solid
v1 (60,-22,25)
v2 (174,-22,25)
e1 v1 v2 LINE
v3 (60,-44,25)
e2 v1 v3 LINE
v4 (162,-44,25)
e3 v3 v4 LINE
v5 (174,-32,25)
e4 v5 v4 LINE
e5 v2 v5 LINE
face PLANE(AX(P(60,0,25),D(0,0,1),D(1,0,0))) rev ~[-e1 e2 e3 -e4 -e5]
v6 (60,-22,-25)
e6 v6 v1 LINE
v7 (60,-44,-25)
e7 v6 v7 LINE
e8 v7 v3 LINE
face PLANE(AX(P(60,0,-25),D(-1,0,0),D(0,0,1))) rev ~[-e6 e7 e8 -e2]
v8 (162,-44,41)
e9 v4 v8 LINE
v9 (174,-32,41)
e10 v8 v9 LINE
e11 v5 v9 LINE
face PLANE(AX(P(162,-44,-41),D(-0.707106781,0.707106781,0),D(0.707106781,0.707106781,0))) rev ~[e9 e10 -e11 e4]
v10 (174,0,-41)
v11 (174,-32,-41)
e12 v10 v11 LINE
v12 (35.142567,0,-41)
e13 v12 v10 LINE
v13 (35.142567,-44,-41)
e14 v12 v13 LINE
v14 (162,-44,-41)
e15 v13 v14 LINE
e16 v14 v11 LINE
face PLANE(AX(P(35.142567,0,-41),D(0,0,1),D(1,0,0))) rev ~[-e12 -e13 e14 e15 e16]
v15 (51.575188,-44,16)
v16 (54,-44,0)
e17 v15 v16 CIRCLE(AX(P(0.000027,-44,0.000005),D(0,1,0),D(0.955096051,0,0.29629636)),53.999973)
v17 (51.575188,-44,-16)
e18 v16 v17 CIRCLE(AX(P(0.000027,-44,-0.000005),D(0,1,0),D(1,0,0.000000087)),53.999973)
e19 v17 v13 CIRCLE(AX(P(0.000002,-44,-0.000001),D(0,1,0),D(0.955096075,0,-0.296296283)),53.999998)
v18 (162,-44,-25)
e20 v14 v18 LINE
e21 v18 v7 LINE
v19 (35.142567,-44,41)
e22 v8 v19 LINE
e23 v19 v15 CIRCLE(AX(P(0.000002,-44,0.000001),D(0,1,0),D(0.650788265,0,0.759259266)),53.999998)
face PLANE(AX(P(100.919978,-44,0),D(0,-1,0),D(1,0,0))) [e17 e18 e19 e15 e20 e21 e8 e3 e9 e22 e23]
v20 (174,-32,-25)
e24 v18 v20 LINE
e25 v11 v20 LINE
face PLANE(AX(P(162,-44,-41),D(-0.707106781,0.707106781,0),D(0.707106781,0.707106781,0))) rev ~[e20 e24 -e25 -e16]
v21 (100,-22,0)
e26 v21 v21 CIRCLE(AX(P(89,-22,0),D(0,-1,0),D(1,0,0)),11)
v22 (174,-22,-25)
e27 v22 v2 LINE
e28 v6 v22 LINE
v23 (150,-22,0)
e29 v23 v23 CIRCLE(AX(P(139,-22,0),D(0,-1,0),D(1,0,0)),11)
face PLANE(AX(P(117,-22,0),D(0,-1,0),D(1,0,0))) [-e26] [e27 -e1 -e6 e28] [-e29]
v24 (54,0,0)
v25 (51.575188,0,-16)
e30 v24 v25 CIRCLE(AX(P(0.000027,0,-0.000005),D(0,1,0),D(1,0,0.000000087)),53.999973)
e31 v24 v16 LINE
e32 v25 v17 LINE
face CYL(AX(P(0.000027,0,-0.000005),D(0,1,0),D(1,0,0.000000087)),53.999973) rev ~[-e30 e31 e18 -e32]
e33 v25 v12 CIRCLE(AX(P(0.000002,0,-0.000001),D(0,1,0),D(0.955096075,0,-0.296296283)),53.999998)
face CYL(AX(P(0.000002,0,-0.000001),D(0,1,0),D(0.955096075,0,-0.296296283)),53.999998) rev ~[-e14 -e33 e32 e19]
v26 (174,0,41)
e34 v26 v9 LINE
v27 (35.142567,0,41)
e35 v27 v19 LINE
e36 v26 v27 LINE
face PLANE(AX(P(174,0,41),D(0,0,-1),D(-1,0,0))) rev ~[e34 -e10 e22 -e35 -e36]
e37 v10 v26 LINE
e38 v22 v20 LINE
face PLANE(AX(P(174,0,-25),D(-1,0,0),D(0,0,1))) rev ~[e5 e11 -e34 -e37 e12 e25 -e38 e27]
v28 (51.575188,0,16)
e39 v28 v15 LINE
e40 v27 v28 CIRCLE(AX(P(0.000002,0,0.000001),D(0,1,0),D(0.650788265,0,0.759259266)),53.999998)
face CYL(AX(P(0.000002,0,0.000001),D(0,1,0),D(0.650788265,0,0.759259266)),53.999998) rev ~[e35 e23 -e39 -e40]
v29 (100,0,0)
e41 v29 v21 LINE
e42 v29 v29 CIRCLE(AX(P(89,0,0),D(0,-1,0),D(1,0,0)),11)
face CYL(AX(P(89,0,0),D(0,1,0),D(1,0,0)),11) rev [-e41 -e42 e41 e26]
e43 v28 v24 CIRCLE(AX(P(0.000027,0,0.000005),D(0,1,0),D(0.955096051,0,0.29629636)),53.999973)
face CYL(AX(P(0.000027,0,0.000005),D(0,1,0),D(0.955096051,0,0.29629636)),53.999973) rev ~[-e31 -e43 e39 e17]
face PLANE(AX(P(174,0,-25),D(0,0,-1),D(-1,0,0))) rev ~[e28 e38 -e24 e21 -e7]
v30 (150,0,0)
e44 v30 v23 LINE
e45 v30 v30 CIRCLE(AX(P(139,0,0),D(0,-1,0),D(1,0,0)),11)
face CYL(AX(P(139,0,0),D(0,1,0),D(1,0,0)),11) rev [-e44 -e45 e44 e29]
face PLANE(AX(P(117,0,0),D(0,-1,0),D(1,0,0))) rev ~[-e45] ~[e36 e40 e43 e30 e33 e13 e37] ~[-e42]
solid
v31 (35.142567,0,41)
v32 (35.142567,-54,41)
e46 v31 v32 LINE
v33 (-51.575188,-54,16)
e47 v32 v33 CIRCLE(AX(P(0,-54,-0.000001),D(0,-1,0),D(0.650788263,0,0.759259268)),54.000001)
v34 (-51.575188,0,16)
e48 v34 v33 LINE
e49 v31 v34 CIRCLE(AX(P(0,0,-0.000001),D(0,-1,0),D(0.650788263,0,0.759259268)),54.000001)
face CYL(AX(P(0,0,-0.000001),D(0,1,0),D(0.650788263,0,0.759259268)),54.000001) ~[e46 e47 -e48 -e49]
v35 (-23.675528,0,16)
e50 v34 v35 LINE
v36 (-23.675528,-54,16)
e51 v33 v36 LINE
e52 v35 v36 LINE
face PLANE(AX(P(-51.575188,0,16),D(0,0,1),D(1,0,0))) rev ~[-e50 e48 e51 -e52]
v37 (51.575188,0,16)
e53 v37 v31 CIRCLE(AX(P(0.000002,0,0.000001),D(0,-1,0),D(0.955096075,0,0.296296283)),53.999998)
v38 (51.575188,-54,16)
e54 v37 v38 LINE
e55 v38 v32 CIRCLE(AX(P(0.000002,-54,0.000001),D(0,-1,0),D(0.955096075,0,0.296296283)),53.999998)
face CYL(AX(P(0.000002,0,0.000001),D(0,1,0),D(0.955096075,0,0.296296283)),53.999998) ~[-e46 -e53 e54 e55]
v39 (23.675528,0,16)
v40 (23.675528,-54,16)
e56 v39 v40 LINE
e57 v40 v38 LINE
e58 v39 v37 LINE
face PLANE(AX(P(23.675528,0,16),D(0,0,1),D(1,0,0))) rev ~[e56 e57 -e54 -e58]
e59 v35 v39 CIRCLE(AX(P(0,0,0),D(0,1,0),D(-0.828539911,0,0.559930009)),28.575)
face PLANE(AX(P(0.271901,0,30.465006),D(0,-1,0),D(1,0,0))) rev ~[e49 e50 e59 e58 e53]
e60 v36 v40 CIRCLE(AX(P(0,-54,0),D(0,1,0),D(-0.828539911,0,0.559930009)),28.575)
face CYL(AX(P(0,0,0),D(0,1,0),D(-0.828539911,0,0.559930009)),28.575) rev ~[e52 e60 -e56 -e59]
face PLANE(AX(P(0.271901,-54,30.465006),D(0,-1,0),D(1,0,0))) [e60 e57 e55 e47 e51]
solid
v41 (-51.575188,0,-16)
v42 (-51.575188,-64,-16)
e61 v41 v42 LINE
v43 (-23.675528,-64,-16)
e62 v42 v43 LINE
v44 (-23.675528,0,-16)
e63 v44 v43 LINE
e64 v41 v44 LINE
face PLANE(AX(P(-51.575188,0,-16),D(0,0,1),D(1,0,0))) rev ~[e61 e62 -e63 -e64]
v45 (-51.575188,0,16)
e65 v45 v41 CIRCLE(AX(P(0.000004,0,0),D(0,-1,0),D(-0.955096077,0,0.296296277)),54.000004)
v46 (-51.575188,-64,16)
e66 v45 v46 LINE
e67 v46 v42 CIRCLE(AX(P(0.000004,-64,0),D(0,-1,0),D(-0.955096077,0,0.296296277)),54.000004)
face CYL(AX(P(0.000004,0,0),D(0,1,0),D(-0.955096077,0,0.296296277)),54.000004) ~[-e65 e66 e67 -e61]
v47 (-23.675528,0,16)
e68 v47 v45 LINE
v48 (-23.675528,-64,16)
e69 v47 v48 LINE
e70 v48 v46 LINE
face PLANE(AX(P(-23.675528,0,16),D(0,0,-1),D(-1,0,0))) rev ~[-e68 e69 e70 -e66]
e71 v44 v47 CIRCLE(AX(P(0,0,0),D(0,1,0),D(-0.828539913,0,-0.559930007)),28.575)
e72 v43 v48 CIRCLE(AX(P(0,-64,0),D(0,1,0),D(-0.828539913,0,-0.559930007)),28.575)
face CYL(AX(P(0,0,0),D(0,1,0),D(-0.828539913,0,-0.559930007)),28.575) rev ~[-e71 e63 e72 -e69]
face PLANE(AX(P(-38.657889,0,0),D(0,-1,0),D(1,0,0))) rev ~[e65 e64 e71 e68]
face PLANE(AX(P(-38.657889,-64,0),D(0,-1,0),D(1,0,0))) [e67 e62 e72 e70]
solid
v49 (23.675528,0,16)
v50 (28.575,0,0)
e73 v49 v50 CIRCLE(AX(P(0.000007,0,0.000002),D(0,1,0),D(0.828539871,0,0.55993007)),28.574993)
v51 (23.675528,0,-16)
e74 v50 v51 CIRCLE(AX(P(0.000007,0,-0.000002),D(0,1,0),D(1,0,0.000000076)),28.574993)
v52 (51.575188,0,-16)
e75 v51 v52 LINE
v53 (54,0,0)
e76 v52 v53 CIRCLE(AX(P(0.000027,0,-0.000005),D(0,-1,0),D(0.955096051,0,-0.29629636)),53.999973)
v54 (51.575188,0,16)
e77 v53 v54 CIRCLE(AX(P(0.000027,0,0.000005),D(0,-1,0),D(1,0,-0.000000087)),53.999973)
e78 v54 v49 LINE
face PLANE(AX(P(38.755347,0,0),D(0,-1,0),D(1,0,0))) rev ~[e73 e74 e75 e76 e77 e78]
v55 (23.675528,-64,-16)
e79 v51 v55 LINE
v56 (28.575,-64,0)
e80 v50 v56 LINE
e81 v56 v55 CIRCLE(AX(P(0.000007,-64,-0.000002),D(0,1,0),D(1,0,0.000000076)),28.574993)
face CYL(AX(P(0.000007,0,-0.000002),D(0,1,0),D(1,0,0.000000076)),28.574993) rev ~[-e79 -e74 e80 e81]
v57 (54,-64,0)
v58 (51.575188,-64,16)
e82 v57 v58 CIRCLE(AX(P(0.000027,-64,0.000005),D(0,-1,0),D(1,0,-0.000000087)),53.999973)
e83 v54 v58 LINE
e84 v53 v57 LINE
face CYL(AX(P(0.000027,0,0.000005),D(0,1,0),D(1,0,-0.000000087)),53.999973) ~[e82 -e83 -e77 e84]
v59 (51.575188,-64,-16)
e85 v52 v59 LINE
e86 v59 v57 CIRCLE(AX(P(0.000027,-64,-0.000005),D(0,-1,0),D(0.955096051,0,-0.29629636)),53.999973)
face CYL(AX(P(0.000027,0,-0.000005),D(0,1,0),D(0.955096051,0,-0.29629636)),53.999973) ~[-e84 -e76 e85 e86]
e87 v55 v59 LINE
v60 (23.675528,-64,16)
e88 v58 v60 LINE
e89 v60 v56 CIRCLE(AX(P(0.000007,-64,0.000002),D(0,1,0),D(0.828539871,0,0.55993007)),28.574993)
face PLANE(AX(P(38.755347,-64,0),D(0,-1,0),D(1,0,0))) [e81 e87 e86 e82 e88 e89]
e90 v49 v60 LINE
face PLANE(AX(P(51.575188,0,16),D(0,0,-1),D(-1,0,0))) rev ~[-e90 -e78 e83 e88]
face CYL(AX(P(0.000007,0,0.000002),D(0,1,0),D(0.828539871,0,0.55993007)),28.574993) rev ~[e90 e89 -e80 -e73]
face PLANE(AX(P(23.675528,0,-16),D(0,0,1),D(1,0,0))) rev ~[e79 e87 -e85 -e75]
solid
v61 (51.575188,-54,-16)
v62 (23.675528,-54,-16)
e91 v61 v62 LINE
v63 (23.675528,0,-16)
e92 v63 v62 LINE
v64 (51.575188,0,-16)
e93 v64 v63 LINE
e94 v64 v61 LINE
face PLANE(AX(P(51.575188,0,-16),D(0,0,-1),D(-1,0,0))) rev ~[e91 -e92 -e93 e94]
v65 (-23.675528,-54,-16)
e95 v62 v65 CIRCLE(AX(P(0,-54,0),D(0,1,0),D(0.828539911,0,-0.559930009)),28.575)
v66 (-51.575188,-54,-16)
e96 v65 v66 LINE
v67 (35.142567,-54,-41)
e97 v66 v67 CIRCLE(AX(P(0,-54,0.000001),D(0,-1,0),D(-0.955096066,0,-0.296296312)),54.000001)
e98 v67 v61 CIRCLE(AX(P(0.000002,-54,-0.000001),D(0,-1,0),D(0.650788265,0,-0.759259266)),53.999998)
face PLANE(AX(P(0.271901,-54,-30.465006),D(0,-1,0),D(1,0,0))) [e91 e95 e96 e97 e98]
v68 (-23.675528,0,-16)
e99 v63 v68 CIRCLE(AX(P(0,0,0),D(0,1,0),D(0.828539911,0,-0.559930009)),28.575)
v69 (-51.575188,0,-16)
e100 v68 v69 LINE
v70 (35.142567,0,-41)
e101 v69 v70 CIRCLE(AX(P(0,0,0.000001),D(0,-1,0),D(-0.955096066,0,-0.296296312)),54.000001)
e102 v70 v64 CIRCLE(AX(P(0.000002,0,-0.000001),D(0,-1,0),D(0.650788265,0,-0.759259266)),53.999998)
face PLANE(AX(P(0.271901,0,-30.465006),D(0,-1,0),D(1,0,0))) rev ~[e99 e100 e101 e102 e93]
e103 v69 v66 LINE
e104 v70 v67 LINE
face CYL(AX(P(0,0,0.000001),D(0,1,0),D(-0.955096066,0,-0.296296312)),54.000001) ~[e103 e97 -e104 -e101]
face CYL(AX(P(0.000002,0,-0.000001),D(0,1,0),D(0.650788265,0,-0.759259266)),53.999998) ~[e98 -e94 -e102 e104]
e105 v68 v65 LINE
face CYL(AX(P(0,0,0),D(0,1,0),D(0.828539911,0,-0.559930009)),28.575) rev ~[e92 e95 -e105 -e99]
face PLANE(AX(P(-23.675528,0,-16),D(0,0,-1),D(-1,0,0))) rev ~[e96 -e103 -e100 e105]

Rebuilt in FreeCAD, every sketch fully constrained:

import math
import FreeCAD as App
import Part
import Sketcher
from FreeCAD import Vector

doc = App.newDocument("Part")
body = doc.addObject("PartDesign::Body", "Body")
body.AllowCompound = True

sketch1 = body.newObject("Sketcher::SketchObject", "Sketch")
sketch1.AttachmentSupport = (doc.getObject("XZ_Plane"), [""])
sketch1.MapMode = "FlatFace"
sketch1.addGeometry([
    Part.LineSegment(Vector(24, 16, 0), Vector(52, 16, 0)),
    Part.ArcOfCircle(Part.Circle(Vector(0, 0, 0), Vector(0, 0, 1), 54), math.radians(17), math.radians(49)),
    Part.ArcOfCircle(Part.Circle(Vector(0, 0, 0), Vector(0, 0, 1), 54), math.radians(49), math.radians(163)),
    Part.LineSegment(Vector(-52, 16, 0), Vector(-24, 16, 0)),
    Part.ArcOfCircle(Part.Circle(Vector(0, 0, 0), Vector(0, 0, 1), 29), math.radians(34), math.radians(146)),
    Part.ArcOfCircle(Part.Circle(Vector(0, 0, 0), Vector(0, 0, 1), 54), math.radians(-49), math.radians(-17)),
    Part.LineSegment(Vector(52, -16, 0), Vector(24, -16, 0)),
    Part.ArcOfCircle(Part.Circle(Vector(0, 0, 0), Vector(0, 0, 1), 29), math.radians(-146), math.radians(-34)),
    Part.LineSegment(Vector(-24, -16, 0), Vector(-52, -16, 0)),
    Part.ArcOfCircle(Part.Circle(Vector(0, 0, 0), Vector(0, 0, 1), 54), math.radians(-163), math.radians(-49)),
], False)
sketch1.addConstraint([
    Sketcher.Constraint("Coincident", 0, 2, 1, 1),
    Sketcher.Constraint("Tangent", 1, 2, 2, 1),
    Sketcher.Constraint("Coincident", 2, 2, 3, 1),
    Sketcher.Constraint("Coincident", 3, 2, 4, 2),
    Sketcher.Constraint("Coincident", 4, 1, 0, 1),
    Sketcher.Constraint("Coincident", 5, 2, 6, 1),
    Sketcher.Constraint("Coincident", 6, 2, 7, 2),
    Sketcher.Constraint("Coincident", 7, 1, 8, 1),
    Sketcher.Constraint("Coincident", 8, 2, 9, 1),
    Sketcher.Constraint("Tangent", 9, 2, 5, 1),
    Sketcher.Constraint("Horizontal", 0),
    Sketcher.Constraint("Horizontal", 3),
    Sketcher.Constraint("Horizontal", 6),
    Sketcher.Constraint("Horizontal", 8),
    Sketcher.Constraint("Coincident", 1, 3, -1, 1),
    Sketcher.Constraint("Coincident", 4, 3, -1, 1),
    Sketcher.Constraint("Coincident", 5, 3, -1, 1),
    Sketcher.Constraint("Coincident", 7, 3, -1, 1),
    Sketcher.Constraint("Equal", 1, 5),
    Sketcher.Constraint("Equal", 4, 7),
    Sketcher.Constraint("Equal", 2, 9),
    Sketcher.Constraint("Symmetric", 2, 2, 5, 2, -1, 1),
    Sketcher.Constraint("Horizontal", 0, 2, 2, 2),
    Sketcher.Constraint("Horizontal", 6, 2, 7, 1),
    Sketcher.Constraint("Vertical", 1, 2, 9, 2),
    Sketcher.Constraint("Radius", 2, 54.000001),
    Sketcher.Constraint("DistanceY", -1, 1, 0, 2, 16.0),
    Sketcher.Constraint("DistanceY", -1, 1, 1, 2, 41.0),
    Sketcher.Constraint("Radius", 4, 28.575),
])
pad1 = body.newObject("PartDesign::Pad", "Pad")
pad1.Profile = sketch1
pad1.Length = 54
body2 = doc.addObject("PartDesign::Body", "Body001")
body2.AllowCompound = True

sketch2 = body2.newObject("Sketcher::SketchObject", "Sketch001")
sketch2.AttachmentSupport = (doc.getObject("XZ_Plane001"), [""])
sketch2.MapMode = "FlatFace"
sketch2.addGeometry([
    Part.LineSegment(Vector(-23.675528, 16, 0), Vector(-51.575188, 16, 0)),
    Part.ArcOfCircle(Part.Circle(Vector(0.000004, 0, 0), Vector(0, 0, 1), 54.000004), math.radians(162.764716), math.radians(197.235284)),
    Part.LineSegment(Vector(-51.575188, -16, 0), Vector(-23.675528, -16, 0)),
    Part.ArcOfCircle(Part.Circle(Vector(0, 0, 0), Vector(0, 0, 1), 28.575), math.radians(145.949043), math.radians(214.050957)),
    Part.ArcOfCircle(Part.Circle(Vector(0.000027, -0.000005, 0), Vector(0, 0, 1), 53.999973), math.radians(-17.235289), math.radians(0.000005)),
    Part.ArcOfCircle(Part.Circle(Vector(0.000027, 0.000005, 0), Vector(0, 0, 1), 53.999973), math.radians(-0.000005), math.radians(17.235289)),
    Part.LineSegment(Vector(51.575188, 16, 0), Vector(23.675528, 16, 0)),
    Part.ArcOfCircle(Part.Circle(Vector(0.000007, 0.000002, 0), Vector(0, 0, 1), 28.574993), math.radians(-0.000004), math.radians(34.050962)),
    Part.ArcOfCircle(Part.Circle(Vector(0.000007, -0.000002, 0), Vector(0, 0, 1), 28.574993), math.radians(-34.050962), math.radians(0.000004)),
    Part.LineSegment(Vector(23.675528, -16, 0), Vector(51.575188, -16, 0)),
], False)
sketch2.addConstraint([
    Sketcher.Constraint("Coincident", 0, 2, 1, 1),
    Sketcher.Constraint("Coincident", 1, 2, 2, 1),
    Sketcher.Constraint("Coincident", 2, 2, 3, 2),
    Sketcher.Constraint("Coincident", 3, 1, 0, 1),
    Sketcher.Constraint("Coincident", 4, 2, 5, 1),
    Sketcher.Constraint("Coincident", 5, 2, 6, 1),
    Sketcher.Constraint("Coincident", 6, 2, 7, 2),
    Sketcher.Constraint("Coincident", 7, 1, 8, 2),
    Sketcher.Constraint("Coincident", 8, 1, 9, 1),
    Sketcher.Constraint("Coincident", 9, 2, 4, 1),
    Sketcher.Constraint("Horizontal", 0),
    Sketcher.Constraint("Horizontal", 2),
    Sketcher.Constraint("Horizontal", 6),
    Sketcher.Constraint("Horizontal", 9),
    Sketcher.Constraint("Coincident", 1, 3, -1, 1),
    Sketcher.Constraint("Coincident", 3, 3, -1, 1),
    Sketcher.Constraint("Coincident", 7, 3, -1, 1),
    Sketcher.Constraint("Coincident", 8, 3, -1, 1),
    Sketcher.Constraint("Coincident", 5, 3, 4, 3),
    Sketcher.Constraint("PointOnObject", 4, 2, -1),
    Sketcher.Constraint("PointOnObject", 7, 1, -1),
    Sketcher.Constraint("DistanceY", -1, 1, 0, 2, 16.0),
    Sketcher.Constraint("DistanceY", 1, 2, -1, 1, 16.0),
    Sketcher.Constraint("DistanceX", -1, 1, 4, 2, 54.0),
    Sketcher.Constraint("DistanceY", -1, 1, 5, 2, 16.0),
    Sketcher.Constraint("DistanceY", 8, 1, -1, 1, 16.0),
    Sketcher.Constraint("Radius", 3, 28.575),
    Sketcher.Constraint("DistanceX", -1, 1, 7, 1, 28.575),
    Sketcher.Constraint("Radius", 1, 54.000004),
    Sketcher.Constraint("Radius", 4, 53.999973),
    Sketcher.Constraint("DistanceX", 6, 2, 6, 1, 27.89966),
])
pad2 = body2.newObject("PartDesign::Pad", "Pad001")
pad2.Profile = sketch2
pad2.Length = 64
body3 = doc.addObject("PartDesign::Body", "Body002")

sketch3 = body3.newObject("Sketcher::SketchObject", "Sketch002")
sketch3.AttachmentSupport = (doc.getObject("XZ_Plane002"), [""])
sketch3.MapMode = "FlatFace"
sketch3.addGeometry([
    Part.ArcOfCircle(Part.Circle(Vector(0.000027, 0.000005, 0), Vector(0, 0, 1), 53.999973), math.radians(-0.000005), math.radians(17.235289)),
    Part.ArcOfCircle(Part.Circle(Vector(0.000027, -0.000005, 0), Vector(0, 0, 1), 53.999973), math.radians(-17.235289), math.radians(0.000005)),
    Part.ArcOfCircle(Part.Circle(Vector(0.000002, -0.000001, 0), Vector(0, 0, 1), 53.999998), math.radians(-49.39894), math.radians(-17.235284)),
    Part.LineSegment(Vector(35.142567, -41, 0), Vector(174, -41, 0)),
    Part.LineSegment(Vector(174, -41, 0), Vector(174, -25, 0)),
    Part.LineSegment(Vector(174, -25, 0), Vector(60, -25, 0)),
    Part.LineSegment(Vector(60, -25, 0), Vector(60, 25, 0)),
    Part.LineSegment(Vector(60, 25, 0), Vector(174, 25, 0)),
    Part.LineSegment(Vector(174, 25, 0), Vector(174, 41, 0)),
    Part.LineSegment(Vector(174, 41, 0), Vector(35.142567, 41, 0)),
    Part.ArcOfCircle(Part.Circle(Vector(0.000002, 0.000001, 0), Vector(0, 0, 1), 53.999998), math.radians(17.235284), math.radians(49.39894)),
], False)
sketch3.addConstraint([
    Sketcher.Constraint("Coincident", 0, 1, 1, 2),
    Sketcher.Constraint("Coincident", 1, 1, 2, 2),
    Sketcher.Constraint("Coincident", 2, 1, 3, 1),
    Sketcher.Constraint("Coincident", 3, 2, 4, 1),
    Sketcher.Constraint("Coincident", 4, 2, 5, 1),
    Sketcher.Constraint("Coincident", 5, 2, 6, 1),
    Sketcher.Constraint("Coincident", 6, 2, 7, 1),
    Sketcher.Constraint("Coincident", 7, 2, 8, 1),
    Sketcher.Constraint("Coincident", 8, 2, 9, 1),
    Sketcher.Constraint("Coincident", 9, 2, 10, 2),
    Sketcher.Constraint("Coincident", 10, 1, 0, 2),
    Sketcher.Constraint("Horizontal", 3),
    Sketcher.Constraint("Vertical", 4),
    Sketcher.Constraint("Horizontal", 5),
    Sketcher.Constraint("Vertical", 6),
    Sketcher.Constraint("Horizontal", 7),
    Sketcher.Constraint("Vertical", 8),
    Sketcher.Constraint("Horizontal", 9),
    Sketcher.Constraint("Coincident", 2, 3, -1, 1),
    Sketcher.Constraint("Coincident", 10, 3, -1, 1),
    Sketcher.Constraint("Coincident", 1, 3, 0, 3),
    Sketcher.Constraint("PointOnObject", 0, 1, -1),
    Sketcher.Constraint("DistanceX", 5, 2, 5, 1, 114.0),
    Sketcher.Constraint("DistanceX", 7, 1, 7, 2, 114.0),
    Sketcher.Constraint("DistanceY", 4, 1, 4, 2, 16.0),
    Sketcher.Constraint("DistanceY", 6, 1, 6, 2, 50.0),
    Sketcher.Constraint("DistanceY", 8, 1, 8, 2, 16.0),
    Sketcher.Constraint("DistanceX", -1, 1, 0, 1, 54.0),
    Sketcher.Constraint("DistanceY", 1, 1, -1, 1, 16.0),
    Sketcher.Constraint("DistanceY", 2, 1, -1, 1, 41.0),
    Sketcher.Constraint("DistanceX", -1, 1, 3, 2, 174.0),
    Sketcher.Constraint("DistanceY", -1, 1, 10, 1, 16.0),
    Sketcher.Constraint("Radius", 0, 53.999973),
    Sketcher.Constraint("Radius", 2, 53.999998),
])
pad3 = body3.newObject("PartDesign::Pad", "Pad002")
pad3.Profile = sketch3
pad3.Length = 44

sketch4 = body3.newObject("Sketcher::SketchObject", "Sketch003")
sketch4.AttachmentSupport = (doc.getObject("XZ_Plane002"), [""])
sketch4.MapMode = "FlatFace"
sketch4.addGeometry([
    Part.LineSegment(Vector(60, 25, 0), Vector(60, -25, 0)),
    Part.LineSegment(Vector(60, -25, 0), Vector(174, -25, 0)),
    Part.LineSegment(Vector(174, -25, 0), Vector(174, 25, 0)),
    Part.LineSegment(Vector(174, 25, 0), Vector(60, 25, 0)),
    Part.Circle(Vector(89, 0, 0), Vector(0, 0, 1), 11),
    Part.Circle(Vector(139, 0, 0), Vector(0, 0, 1), 11),
], False)
sketch4.addConstraint([
    Sketcher.Constraint("Coincident", 0, 2, 1, 1),
    Sketcher.Constraint("Coincident", 1, 2, 2, 1),
    Sketcher.Constraint("Coincident", 2, 2, 3, 1),
    Sketcher.Constraint("Coincident", 3, 2, 0, 1),
    Sketcher.Constraint("Vertical", 0),
    Sketcher.Constraint("Horizontal", 1),
    Sketcher.Constraint("Vertical", 2),
    Sketcher.Constraint("Horizontal", 3),
    Sketcher.Constraint("Equal", 4, 5),
    Sketcher.Constraint("PointOnObject", 4, 3, -1),
    Sketcher.Constraint("PointOnObject", 5, 3, -1),
    Sketcher.Constraint("Diameter", 4, 22.0),
    Sketcher.Constraint("DistanceX", 1, 1, 1, 2, 114.0),
    Sketcher.Constraint("DistanceY", 0, 2, 0, 1, 50.0),
    Sketcher.Constraint("DistanceX", -1, 1, 4, 3, 89.0),
    Sketcher.Constraint("DistanceX", -1, 1, 5, 3, 139.0),
    Sketcher.Constraint("DistanceX", -1, 1, 0, 2, 60.0),
    Sketcher.Constraint("DistanceY", 0, 2, -1, 1, 25.0),
])
pad4 = body3.newObject("PartDesign::Pad", "Pad003")
pad4.Profile = sketch4
pad4.Length = 22

sketch5 = body3.newObject("Sketcher::SketchObject", "Sketch004")
sketch5.AttachmentSupport = (doc.getObject("XY_Plane002"), [""])
sketch5.MapMode = "FlatFace"
sketch5.AttachmentOffset = App.Placement(Vector(0, 0, -41), App.Rotation())
sketch5.addGeometry([
    Part.LineSegment(Vector(174, -44, 0), Vector(162, -44, 0)),
    Part.LineSegment(Vector(162, -44, 0), Vector(174, -32, 0)),
    Part.LineSegment(Vector(174, -32, 0), Vector(174, -44, 0)),
], False)
sketch5.addConstraint([
    Sketcher.Constraint("Coincident", 0, 2, 1, 1),
    Sketcher.Constraint("Coincident", 1, 2, 2, 1),
    Sketcher.Constraint("Coincident", 2, 2, 0, 1),
    Sketcher.Constraint("Horizontal", 0),
    Sketcher.Constraint("Vertical", 2),
    Sketcher.Constraint("Equal", 0, 2),
    Sketcher.Constraint("DistanceX", 0, 2, 0, 1, 12.0),
    Sketcher.Constraint("DistanceX", -1, 1, 0, 2, 162.0),
    Sketcher.Constraint("DistanceY", 0, 2, -1, 1, 44.0),
])
pocket1 = body3.newObject("PartDesign::Pocket", "Pocket")
pocket1.Profile = sketch5
pocket1.Type = "ThroughAll"
pocket1.Reversed = True

doc.recompute()
